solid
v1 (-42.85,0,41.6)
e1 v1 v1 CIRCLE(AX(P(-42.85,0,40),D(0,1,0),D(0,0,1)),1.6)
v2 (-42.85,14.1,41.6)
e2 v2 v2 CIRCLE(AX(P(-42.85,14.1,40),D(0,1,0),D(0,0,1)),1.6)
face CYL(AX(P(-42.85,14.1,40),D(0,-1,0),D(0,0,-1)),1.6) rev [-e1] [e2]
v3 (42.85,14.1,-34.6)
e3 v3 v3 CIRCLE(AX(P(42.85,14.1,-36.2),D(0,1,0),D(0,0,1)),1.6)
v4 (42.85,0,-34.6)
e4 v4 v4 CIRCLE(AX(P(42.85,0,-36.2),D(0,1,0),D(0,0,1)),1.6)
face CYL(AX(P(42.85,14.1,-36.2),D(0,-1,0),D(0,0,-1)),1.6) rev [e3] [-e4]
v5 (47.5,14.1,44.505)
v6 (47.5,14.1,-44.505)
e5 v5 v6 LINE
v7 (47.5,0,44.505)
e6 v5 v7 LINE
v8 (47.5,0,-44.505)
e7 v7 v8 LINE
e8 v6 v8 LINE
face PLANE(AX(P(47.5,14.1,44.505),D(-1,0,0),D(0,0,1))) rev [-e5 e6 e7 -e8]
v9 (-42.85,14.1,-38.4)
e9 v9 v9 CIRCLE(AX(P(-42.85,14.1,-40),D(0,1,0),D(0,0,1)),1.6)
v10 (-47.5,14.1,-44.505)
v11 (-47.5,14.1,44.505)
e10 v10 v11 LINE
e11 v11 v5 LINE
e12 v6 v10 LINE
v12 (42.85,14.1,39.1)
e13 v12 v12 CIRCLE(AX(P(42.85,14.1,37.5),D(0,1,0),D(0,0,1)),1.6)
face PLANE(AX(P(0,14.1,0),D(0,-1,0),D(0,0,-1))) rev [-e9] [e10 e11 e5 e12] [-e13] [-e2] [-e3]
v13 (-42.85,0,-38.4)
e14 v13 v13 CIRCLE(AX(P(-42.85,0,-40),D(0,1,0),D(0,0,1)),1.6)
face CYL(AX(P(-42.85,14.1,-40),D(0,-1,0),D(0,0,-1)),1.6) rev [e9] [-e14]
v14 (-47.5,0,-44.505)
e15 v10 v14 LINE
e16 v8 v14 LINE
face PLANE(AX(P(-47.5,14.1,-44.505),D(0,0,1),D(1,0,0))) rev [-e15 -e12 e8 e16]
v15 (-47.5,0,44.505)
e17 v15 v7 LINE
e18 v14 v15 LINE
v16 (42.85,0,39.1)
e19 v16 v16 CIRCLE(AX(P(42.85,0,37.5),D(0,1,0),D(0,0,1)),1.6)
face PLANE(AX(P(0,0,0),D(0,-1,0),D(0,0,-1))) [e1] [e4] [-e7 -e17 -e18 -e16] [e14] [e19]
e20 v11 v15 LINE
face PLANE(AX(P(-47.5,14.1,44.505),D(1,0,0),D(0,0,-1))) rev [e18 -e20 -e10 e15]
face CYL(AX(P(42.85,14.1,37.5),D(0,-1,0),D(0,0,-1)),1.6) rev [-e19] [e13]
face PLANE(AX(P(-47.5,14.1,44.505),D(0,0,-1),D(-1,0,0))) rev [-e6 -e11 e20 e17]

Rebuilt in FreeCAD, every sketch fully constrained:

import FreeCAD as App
import Part
import Sketcher

V = App.Vector

doc = App.newDocument("Part")
body = doc.addObject("PartDesign::Body", "Body")

sketch1 = body.newObject("Sketcher::SketchObject", "Sketch")
sketch1.AttachmentSupport = (doc.getObject("XZ_Plane"), [""])
sketch1.MapMode = "FlatFace"
sketch1.addGeometry(Part.LineSegment(V(-47.5, -44.5, 0), V(-47.5, 44.5, 0)), False)
sketch1.addGeometry(Part.LineSegment(V(-47.5, 44.5, 0), V(47.5, 44.5, 0)), False)
sketch1.addGeometry(Part.LineSegment(V(47.5, 44.5, 0), V(47.5, -44.5, 0)), False)
sketch1.addGeometry(Part.LineSegment(V(47.5, -44.5, 0), V(-47.5, -44.5, 0)), False)
sketch1.addGeometry(Part.Circle(V(-42.9, 40, 0), V(0, 0, 1), 1.6), False)
sketch1.addGeometry(Part.Circle(V(42.9, 37.5, 0), V(0, 0, 1), 1.6), False)
sketch1.addGeometry(Part.Circle(V(-42.9, -40, 0), V(0, 0, 1), 1.6), False)
sketch1.addGeometry(Part.Circle(V(42.9, -36.2, 0), V(0, 0, 1), 1.6), False)
sketch1.addConstraint(Sketcher.Constraint("Coincident", 0, 2, 1, 1))
sketch1.addConstraint(Sketcher.Constraint("Coincident", 1, 2, 2, 1))
sketch1.addConstraint(Sketcher.Constraint("Coincident", 2, 2, 3, 1))
sketch1.addConstraint(Sketcher.Constraint("Coincident", 3, 2, 0, 1))
sketch1.addConstraint(Sketcher.Constraint("Vertical", 0))
sketch1.addConstraint(Sketcher.Constraint("Horizontal", 1))
sketch1.addConstraint(Sketcher.Constraint("Vertical", 2))
sketch1.addConstraint(Sketcher.Constraint("Horizontal", 3))
sketch1.addConstraint(Sketcher.Constraint("Equal", 4, 5))
sketch1.addConstraint(Sketcher.Constraint("Equal", 5, 6))
sketch1.addConstraint(Sketcher.Constraint("Equal", 6, 7))
sketch1.addConstraint(Sketcher.Constraint("Symmetric", 0, 2, 2, 2, -1, 1))
sketch1.addConstraint(Sketcher.Constraint("Symmetric", 4, 3, 6, 3, -1))
sketch1.addConstraint(Sketcher.Constraint("Vertical", 5, 3, 7, 3))
sketch1.addConstraint(Sketcher.Constraint("Diameter", 4, 3.2))
sketch1.addConstraint(Sketcher.Constraint("DistanceX", 1, 1, 1, 2, 95.0))
sketch1.addConstraint(Sketcher.Constraint("DistanceY", -1, 1, 4, 3, 40.0))
sketch1.addConstraint(Sketcher.Constraint("DistanceY", 0, 1, 0, 2, 89.01))
sketch1.addConstraint(Sketcher.Constraint("DistanceY", -1, 1, 5, 3, 37.5))
sketch1.addConstraint(Sketcher.Constraint("DistanceY", 7, 3, -1, 1, 36.2))
sketch1.addConstraint(Sketcher.Constraint("DistanceX", 4, 3, 5, 3, 85.7))
sketch1.addConstraint(Sketcher.Constraint("DistanceX", 4, 3, -1, 1, 42.85))
pad1 = body.newObject("PartDesign::Pad", "Pad")
pad1.Profile = sketch1
pad1.Length = 14.1
pad1.Reversed = True

doc.recompute()
